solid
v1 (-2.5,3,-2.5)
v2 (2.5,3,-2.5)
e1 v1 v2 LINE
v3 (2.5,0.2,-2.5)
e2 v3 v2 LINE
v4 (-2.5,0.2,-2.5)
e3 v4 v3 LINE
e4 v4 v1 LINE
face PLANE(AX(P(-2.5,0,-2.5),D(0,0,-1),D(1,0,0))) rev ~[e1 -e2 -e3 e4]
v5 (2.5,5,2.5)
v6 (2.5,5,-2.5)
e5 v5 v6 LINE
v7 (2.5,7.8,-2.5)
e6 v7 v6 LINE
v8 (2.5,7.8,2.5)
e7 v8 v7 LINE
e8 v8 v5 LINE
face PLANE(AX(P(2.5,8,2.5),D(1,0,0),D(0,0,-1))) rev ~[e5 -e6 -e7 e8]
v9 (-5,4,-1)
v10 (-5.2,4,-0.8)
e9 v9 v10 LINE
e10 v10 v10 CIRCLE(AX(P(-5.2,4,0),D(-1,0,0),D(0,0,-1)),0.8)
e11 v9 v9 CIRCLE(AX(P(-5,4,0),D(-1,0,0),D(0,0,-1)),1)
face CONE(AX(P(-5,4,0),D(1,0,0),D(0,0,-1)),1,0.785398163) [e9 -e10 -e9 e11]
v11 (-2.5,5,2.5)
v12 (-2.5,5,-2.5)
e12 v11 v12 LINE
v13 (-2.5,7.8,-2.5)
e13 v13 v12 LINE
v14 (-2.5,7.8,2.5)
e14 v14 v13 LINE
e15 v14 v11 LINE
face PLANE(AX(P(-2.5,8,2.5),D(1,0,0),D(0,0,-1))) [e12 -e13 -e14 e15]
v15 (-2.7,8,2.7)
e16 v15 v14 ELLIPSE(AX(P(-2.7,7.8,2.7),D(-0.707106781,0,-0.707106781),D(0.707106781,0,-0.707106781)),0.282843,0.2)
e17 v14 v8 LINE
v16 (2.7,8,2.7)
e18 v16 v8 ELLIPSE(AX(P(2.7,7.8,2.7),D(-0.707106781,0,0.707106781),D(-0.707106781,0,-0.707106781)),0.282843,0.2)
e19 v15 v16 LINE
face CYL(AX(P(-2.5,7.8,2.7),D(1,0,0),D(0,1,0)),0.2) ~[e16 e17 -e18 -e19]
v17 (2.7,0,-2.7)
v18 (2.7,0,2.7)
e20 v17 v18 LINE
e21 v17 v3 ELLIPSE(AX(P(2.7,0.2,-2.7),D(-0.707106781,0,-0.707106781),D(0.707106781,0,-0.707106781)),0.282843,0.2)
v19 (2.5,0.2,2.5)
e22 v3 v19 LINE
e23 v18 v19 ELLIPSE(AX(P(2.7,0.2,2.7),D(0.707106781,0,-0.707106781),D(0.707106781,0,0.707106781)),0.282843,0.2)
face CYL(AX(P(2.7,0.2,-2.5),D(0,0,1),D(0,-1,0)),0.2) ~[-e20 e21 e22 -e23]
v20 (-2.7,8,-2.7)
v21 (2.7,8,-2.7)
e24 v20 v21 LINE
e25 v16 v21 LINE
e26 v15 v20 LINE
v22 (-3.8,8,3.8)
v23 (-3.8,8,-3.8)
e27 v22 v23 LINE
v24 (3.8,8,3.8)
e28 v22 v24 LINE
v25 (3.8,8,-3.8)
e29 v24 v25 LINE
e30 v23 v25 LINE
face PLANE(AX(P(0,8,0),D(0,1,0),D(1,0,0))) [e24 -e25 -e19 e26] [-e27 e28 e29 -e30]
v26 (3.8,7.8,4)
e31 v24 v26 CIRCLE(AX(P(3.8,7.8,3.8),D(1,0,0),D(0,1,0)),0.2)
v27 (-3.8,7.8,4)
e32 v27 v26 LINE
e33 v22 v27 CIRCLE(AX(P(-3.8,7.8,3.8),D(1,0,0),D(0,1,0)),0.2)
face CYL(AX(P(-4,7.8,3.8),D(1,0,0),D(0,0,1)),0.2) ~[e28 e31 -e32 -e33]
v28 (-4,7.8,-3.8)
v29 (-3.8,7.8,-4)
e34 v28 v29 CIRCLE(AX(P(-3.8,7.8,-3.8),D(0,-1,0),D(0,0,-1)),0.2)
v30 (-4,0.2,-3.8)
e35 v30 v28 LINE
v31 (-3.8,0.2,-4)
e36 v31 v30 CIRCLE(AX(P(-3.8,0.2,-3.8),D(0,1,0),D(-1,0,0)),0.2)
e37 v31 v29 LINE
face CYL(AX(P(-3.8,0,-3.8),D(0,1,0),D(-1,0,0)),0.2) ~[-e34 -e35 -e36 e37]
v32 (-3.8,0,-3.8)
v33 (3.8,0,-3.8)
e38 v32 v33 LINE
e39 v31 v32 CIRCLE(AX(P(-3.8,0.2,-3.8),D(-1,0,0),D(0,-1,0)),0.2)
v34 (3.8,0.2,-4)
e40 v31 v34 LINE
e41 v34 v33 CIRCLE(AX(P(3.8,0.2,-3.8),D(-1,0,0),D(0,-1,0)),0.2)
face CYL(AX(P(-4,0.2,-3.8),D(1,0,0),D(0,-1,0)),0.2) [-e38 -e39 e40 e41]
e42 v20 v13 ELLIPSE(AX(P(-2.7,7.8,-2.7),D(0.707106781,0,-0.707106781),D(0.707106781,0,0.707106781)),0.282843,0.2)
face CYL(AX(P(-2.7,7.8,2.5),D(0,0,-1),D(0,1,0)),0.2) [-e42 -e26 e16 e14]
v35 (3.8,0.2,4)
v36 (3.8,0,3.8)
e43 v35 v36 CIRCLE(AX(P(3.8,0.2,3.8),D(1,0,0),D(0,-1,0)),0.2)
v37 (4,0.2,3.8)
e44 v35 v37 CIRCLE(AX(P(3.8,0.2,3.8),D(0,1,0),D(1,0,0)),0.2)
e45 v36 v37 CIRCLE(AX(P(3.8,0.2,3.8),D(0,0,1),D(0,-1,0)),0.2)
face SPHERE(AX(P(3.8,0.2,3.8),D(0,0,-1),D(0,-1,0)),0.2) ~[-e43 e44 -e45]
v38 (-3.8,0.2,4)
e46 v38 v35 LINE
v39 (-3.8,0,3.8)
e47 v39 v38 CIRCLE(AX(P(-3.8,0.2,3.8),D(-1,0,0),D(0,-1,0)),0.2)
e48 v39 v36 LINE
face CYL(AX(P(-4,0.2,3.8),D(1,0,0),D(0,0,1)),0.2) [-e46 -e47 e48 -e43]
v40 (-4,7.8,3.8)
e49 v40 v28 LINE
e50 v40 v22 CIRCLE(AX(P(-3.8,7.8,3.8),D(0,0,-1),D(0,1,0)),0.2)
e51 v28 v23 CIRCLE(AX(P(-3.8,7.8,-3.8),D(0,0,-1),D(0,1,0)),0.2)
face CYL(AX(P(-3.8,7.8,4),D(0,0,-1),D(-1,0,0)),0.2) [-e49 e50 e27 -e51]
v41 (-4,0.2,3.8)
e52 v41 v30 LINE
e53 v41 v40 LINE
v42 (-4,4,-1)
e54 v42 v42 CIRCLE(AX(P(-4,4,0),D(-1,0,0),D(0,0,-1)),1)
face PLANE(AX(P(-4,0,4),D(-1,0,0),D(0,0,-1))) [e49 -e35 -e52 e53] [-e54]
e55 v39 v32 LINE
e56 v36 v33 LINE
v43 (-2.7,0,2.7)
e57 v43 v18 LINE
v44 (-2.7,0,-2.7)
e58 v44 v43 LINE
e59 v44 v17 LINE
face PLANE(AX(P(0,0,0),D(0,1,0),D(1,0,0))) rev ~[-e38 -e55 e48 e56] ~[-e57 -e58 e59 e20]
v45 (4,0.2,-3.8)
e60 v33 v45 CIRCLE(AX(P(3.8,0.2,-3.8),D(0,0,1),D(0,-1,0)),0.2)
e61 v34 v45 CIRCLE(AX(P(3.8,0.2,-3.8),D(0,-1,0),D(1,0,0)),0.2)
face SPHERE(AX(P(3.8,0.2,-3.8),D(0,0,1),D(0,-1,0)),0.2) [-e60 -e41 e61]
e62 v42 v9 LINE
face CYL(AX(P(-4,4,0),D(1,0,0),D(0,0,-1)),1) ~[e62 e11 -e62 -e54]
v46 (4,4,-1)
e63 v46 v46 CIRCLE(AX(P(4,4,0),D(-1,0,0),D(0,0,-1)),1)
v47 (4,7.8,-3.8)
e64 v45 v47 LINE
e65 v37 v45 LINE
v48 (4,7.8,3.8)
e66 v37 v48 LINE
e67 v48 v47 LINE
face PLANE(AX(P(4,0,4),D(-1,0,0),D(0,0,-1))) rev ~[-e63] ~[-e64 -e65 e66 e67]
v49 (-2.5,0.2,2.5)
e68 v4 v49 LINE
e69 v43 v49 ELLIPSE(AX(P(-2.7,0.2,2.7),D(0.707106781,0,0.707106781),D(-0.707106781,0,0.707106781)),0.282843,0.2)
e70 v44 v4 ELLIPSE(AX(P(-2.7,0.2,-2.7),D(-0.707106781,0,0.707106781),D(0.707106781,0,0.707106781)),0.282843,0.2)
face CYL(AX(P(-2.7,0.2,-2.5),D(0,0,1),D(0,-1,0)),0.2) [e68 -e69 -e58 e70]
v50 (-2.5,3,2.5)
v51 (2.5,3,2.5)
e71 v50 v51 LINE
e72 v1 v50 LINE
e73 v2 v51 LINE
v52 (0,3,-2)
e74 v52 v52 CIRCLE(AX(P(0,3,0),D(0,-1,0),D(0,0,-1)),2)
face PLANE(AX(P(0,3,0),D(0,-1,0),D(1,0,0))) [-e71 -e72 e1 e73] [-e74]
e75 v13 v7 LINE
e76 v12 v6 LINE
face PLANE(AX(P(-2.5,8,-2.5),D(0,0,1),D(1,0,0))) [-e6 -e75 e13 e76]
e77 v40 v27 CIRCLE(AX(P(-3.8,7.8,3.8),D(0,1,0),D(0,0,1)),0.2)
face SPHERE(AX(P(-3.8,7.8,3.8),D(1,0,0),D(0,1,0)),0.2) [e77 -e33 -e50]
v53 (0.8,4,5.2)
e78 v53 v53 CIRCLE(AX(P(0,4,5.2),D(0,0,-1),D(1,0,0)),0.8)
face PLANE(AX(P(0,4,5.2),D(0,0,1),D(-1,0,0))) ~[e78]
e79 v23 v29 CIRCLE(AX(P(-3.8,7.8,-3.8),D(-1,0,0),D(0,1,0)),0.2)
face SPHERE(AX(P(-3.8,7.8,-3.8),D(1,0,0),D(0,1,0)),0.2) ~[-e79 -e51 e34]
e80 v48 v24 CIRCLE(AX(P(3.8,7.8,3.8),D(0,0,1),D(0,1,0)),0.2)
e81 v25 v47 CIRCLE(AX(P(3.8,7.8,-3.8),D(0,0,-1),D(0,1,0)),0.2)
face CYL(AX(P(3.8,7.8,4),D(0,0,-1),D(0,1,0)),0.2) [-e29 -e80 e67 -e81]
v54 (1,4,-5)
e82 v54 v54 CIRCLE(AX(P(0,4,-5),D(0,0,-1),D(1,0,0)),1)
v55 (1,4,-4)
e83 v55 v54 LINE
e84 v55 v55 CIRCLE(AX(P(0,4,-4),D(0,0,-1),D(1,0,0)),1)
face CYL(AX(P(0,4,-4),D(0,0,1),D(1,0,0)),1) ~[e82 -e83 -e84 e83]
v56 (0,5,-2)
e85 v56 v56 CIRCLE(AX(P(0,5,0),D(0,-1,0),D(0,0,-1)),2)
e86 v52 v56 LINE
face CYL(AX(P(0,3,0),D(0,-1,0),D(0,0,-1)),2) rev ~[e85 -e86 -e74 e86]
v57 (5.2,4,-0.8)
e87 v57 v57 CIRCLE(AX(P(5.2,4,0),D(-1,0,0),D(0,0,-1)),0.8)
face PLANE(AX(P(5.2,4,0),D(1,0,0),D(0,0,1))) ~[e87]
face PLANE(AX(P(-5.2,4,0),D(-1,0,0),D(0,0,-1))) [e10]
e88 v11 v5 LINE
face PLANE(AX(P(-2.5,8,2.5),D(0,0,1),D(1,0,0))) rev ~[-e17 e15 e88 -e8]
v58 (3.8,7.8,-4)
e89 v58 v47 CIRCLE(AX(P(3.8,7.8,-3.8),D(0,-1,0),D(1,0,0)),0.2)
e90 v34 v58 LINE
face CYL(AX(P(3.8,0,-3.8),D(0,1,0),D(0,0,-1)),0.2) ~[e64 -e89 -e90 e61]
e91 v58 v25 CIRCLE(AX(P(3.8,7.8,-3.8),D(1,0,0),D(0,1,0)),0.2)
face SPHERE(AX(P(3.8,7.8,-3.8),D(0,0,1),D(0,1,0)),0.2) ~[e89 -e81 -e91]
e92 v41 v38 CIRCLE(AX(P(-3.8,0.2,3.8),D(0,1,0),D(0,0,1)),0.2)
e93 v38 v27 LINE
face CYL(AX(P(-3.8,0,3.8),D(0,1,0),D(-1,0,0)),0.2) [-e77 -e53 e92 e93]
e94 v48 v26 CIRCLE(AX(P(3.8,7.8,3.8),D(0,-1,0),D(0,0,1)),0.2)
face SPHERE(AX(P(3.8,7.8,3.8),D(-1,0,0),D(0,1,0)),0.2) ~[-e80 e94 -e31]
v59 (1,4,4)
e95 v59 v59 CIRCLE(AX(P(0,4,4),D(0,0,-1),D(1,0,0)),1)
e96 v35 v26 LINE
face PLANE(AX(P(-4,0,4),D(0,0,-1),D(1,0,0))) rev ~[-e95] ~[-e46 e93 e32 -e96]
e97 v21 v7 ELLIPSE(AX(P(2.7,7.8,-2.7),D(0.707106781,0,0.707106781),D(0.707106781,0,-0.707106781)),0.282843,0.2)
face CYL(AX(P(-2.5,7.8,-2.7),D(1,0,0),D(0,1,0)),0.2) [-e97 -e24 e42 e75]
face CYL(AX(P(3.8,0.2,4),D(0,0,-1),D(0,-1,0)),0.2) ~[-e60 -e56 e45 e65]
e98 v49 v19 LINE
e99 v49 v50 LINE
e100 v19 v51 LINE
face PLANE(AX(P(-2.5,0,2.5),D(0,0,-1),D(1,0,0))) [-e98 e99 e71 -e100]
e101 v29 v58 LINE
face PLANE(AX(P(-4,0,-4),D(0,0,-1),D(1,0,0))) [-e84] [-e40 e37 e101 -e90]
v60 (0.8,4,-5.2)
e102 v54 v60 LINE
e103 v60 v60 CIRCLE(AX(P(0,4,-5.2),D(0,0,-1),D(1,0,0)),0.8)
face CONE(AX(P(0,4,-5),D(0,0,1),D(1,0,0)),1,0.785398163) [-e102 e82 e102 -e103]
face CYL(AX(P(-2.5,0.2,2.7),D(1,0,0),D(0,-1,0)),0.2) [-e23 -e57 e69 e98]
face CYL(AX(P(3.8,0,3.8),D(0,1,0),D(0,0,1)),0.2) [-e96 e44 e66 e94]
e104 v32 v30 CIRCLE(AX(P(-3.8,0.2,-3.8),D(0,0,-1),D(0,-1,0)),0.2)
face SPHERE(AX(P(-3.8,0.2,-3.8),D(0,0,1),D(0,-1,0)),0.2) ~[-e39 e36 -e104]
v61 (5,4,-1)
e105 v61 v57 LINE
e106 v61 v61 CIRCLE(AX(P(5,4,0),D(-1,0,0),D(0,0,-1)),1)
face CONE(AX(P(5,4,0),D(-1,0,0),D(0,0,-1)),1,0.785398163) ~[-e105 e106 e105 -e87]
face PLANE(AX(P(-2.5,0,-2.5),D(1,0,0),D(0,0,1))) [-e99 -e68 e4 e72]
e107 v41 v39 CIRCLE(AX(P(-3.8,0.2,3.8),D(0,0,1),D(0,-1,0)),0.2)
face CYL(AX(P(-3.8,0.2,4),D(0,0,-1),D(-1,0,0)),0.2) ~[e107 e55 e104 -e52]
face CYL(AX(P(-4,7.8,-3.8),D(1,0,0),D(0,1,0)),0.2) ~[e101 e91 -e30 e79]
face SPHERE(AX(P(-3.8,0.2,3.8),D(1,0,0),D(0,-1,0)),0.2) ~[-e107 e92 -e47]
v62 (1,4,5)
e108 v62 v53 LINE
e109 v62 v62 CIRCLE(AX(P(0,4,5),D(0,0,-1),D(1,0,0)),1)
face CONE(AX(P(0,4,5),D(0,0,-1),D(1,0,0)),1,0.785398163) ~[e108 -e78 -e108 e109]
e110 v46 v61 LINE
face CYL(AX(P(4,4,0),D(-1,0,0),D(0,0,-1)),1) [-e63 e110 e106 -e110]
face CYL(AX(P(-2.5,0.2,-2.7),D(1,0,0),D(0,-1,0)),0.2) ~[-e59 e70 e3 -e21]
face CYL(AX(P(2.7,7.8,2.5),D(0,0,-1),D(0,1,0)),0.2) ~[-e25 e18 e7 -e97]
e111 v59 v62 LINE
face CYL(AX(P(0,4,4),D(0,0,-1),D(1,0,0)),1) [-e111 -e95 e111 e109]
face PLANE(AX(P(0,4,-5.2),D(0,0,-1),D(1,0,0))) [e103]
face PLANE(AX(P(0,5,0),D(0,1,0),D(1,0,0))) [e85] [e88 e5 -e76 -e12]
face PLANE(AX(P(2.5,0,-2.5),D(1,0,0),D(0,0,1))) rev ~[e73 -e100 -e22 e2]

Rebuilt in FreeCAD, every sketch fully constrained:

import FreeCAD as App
import Part
import Sketcher
Q = App.Units.Quantity


def edges_at(feature, points):
    """Names of the edges that pass closest to the given points."""
    edges = feature.Shape.Edges
    near = lambda p: min(range(len(edges)), key=lambda i: edges[i].distToShape(Part.Vertex(*p))[0])
    return sorted({f"Edge{near(p) + 1}" for p in points})


def add_polygon(sketch, points):
    """Adds a closed chain of lines whose ends are joined by coincident constraints."""
    first, n = sketch.GeometryCount, len(points)
    for a, b in zip(points, points[1:] + points[:1]):
        sketch.addGeometry(Part.LineSegment(App.Vector(*a, 0), App.Vector(*b, 0)), False)
    for i in range(n):
        sketch.addConstraint(Sketcher.Constraint("Coincident", first + i, 2, first + (i + 1) % n, 1))

doc = App.newDocument("Part")
params = doc.addObject("Spreadsheet::Sheet", "Params")
for row, (alias, value) in enumerate([
    ("sketch1_width", "8 mm"),
    ("pad1_length", "8 mm"),
    ("sketch2_width", "5 mm"),
    ("pocket1_length", "3 mm"),
    ("sketch3_width", "5 mm"),
    ("pocket2_length", "3 mm"),
    ("sketch4_diameter", "4 mm"),
    ("sketch5_diameter", "2 mm"),
    ("pad2_length", "1.2 mm"),
    ("sketch6_diameter", "2 mm"),
    ("pad3_length", "1.2 mm"),
    ("chamfer_size", "0.2 mm"),
    ("fillet_radius", "0.2 mm"),
], start=1):
    params.set(f"A{row}", alias)
    params.set(f"B{row}", "=" + value)
    params.setAlias(f"B{row}", alias)

body = doc.addObject("PartDesign::Body", "Body")

sketch1 = body.newObject("Sketcher::SketchObject", "Sketch")
sketch1.AttachmentSupport = (doc.getObject("XZ_Plane"), [""])
sketch1.MapMode = "FlatFace"
add_polygon(sketch1, [(-4, -4), (-4, 4), (4, 4), (4, -4)])
sketch1.addConstraint(Sketcher.Constraint("Vertical", 0))
sketch1.addConstraint(Sketcher.Constraint("Horizontal", 1))
sketch1.addConstraint(Sketcher.Constraint("Vertical", 2))
sketch1.addConstraint(Sketcher.Constraint("Horizontal", 3))
sketch1.addConstraint(Sketcher.Constraint("Symmetric", 0, 2, 2, 2, -1, 1))
sketch1.addConstraint(Sketcher.Constraint("Equal", 3, 0))
sketch1.addConstraint(Sketcher.Constraint("DistanceX", 1, 1, 1, 2, Q("8 mm")))
sketch1.setExpression("Constraints[10]", "Params.sketch1_width")
pad1 = body.newObject("PartDesign::Pad", "Pad")
pad1.Profile = sketch1
pad1.setExpression("Length", "Params.pad1_length")
pad1.Reversed = True

sketch2 = body.newObject("Sketcher::SketchObject", "Sketch001")
sketch2.AttachmentSupport = (doc.getObject("XZ_Plane"), [""])
sketch2.MapMode = "FlatFace"
sketch2.AttachmentOffset = App.Placement(App.Vector(0, 0, -8), App.Rotation())
add_polygon(sketch2, [(-2.5, -2.5), (-2.5, 2.5), (2.5, 2.5), (2.5, -2.5)])
sketch2.addConstraint(Sketcher.Constraint("Vertical", 0))
sketch2.addConstraint(Sketcher.Constraint("Horizontal", 1))
sketch2.addConstraint(Sketcher.Constraint("Vertical", 2))
sketch2.addConstraint(Sketcher.Constraint("Horizontal", 3))
sketch2.addConstraint(Sketcher.Constraint("Symmetric", 0, 2, 2, 2, -1, 1))
sketch2.addConstraint(Sketcher.Constraint("Equal", 3, 0))
sketch2.addConstraint(Sketcher.Constraint("DistanceX", 1, 1, 1, 2, Q("5 mm")))
sketch2.setExpression("Constraints[10]", "Params.sketch2_width")
pocket1 = body.newObject("PartDesign::Pocket", "Pocket")
pocket1.Profile = sketch2
pocket1.setExpression("Length", "Params.pocket1_length")
pocket1.Reversed = True

sketch3 = body.newObject("Sketcher::SketchObject", "Sketch002")
sketch3.AttachmentSupport = (doc.getObject("XZ_Plane"), [""])
sketch3.MapMode = "FlatFace"
add_polygon(sketch3, [(-2.5, 2.5), (-2.5, -2.5), (2.5, -2.5), (2.5, 2.5)])
sketch3.addConstraint(Sketcher.Constraint("Vertical", 0))
sketch3.addConstraint(Sketcher.Constraint("Horizontal", 1))
sketch3.addConstraint(Sketcher.Constraint("Vertical", 2))
sketch3.addConstraint(Sketcher.Constraint("Horizontal", 3))
sketch3.addConstraint(Sketcher.Constraint("Symmetric", 0, 2, 2, 2, -1, 1))
sketch3.addConstraint(Sketcher.Constraint("Equal", 3, 0))
sketch3.addConstraint(Sketcher.Constraint("DistanceX", 1, 1, 1, 2, Q("5 mm")))
sketch3.setExpression("Constraints[10]", "Params.sketch3_width")
pocket2 = body.newObject("PartDesign::Pocket", "Pocket001")
pocket2.Profile = sketch3
pocket2.setExpression("Length", "Params.pocket2_length")

sketch4 = body.newObject("Sketcher::SketchObject", "Sketch003")
sketch4.AttachmentSupport = (doc.getObject("XZ_Plane"), [""])
sketch4.MapMode = "FlatFace"
sketch4.AttachmentOffset = App.Placement(App.Vector(0, 0, -3), App.Rotation())
sketch4.addGeometry(Part.Circle(App.Vector(0, 0, 0), App.Vector(0, 0, 1), 2), False)
sketch4.addConstraint(Sketcher.Constraint("Coincident", 0, 3, -1, 1))
sketch4.addConstraint(Sketcher.Constraint("Diameter", 0, Q("4 mm")))
sketch4.setExpression("Constraints[1]", "Params.sketch4_diameter")
pocket3 = body.newObject("PartDesign::Pocket", "Pocket002")
pocket3.Profile = sketch4
pocket3.Type = "UpToFirst"

sketch5 = body.newObject("Sketcher::SketchObject", "Sketch004")
sketch5.AttachmentSupport = (doc.getObject("YZ_Plane"), [""])
sketch5.MapMode = "FlatFace"
sketch5.AttachmentOffset = App.Placement(App.Vector(0, 0, -4), App.Rotation())
sketch5.addGeometry(Part.Circle(App.Vector(4, 0, 0), App.Vector(0, 0, 1), 1), False)
sketch5.addConstraint(Sketcher.Constraint("PointOnObject", 0, 3, -1))
sketch5.addConstraint(Sketcher.Constraint("Diameter", 0, Q("2 mm")))
sketch5.addConstraint(Sketcher.Constraint("DistanceX", -1, 1, 0, 3, Q("4 mm")))
sketch5.setExpression("Constraints[1]", "Params.sketch5_diameter")
pad2 = body.newObject("PartDesign::Pad", "Pad001")
pad2.Profile = sketch5
pad2.setExpression("Length", "Params.pad2_length")
pad2.Reversed = True
doc.recompute()

mirrored = body.newObject("PartDesign::Mirrored", "Mirrored")
mirrored.Originals = [pad2]
mirrored.MirrorPlane = (doc.getObject("YZ_Plane"), [""])
body.Tip = mirrored

sketch6 = body.newObject("Sketcher::SketchObject", "Sketch005")
sketch6.AttachmentSupport = (doc.getObject("XY_Plane"), [""])
sketch6.MapMode = "FlatFace"
sketch6.AttachmentOffset = App.Placement(App.Vector(0, 0, -4), App.Rotation())
sketch6.addGeometry(Part.Circle(App.Vector(0, 4, 0), App.Vector(0, 0, 1), 1), False)
sketch6.addConstraint(Sketcher.Constraint("PointOnObject", 0, 3, -2))
sketch6.addConstraint(Sketcher.Constraint("Diameter", 0, Q("2 mm")))
sketch6.addConstraint(Sketcher.Constraint("DistanceY", -1, 1, 0, 3, Q("4 mm")))
sketch6.setExpression("Constraints[1]", "Params.sketch6_diameter")
pad3 = body.newObject("PartDesign::Pad", "Pad002")
pad3.Profile = sketch6
pad3.setExpression("Length", "Params.pad3_length")
pad3.Reversed = True
doc.recompute()

mirrored2 = body.newObject("PartDesign::Mirrored", "Mirrored001")
mirrored2.Originals = [pad3]
mirrored2.MirrorPlane = (doc.getObject("XY_Plane"), [""])
body.Tip = mirrored2
doc.recompute()

chamfer = body.newObject("PartDesign::Chamfer", "Chamfer")
chamfer.Base = (mirrored2, edges_at(mirrored2, [
    (-5.2, 4, 1),
    (5.2, 4, 1),
    (-1, 4, -5.2),
    (-1, 4, 5.2),
]))
chamfer.setExpression("Size", "Params.chamfer_size")
doc.recompute()

fillet = body.newObject("PartDesign::Fillet", "Fillet")
fillet.Base = (chamfer, edges_at(chamfer, [
    (0, 8, 4),
    (4, 8, 0),
    (2.5, 8, 0),
    (0, 8, -2.5),
    (-2.5, 8, 0),
    (0, 8, 2.5),
    (-2.5, 0, 0),
    (0, 0, -2.5),
    (2.5, 0, 0),
    (0, 0, 2.5),
    (0, 8, -4),
    (4, 0, 0),
    (0, 0, 4),
    (-4, 0, 0),
    (0, 0, -4),
    (-4, 8, 0),
    (4, 4, -4),
    (4, 4, 4),
    (-4, 4, 4),
    (-4, 4, -4),
]))
fillet.setExpression("Radius", "Params.fillet_radius")

doc.recompute()
